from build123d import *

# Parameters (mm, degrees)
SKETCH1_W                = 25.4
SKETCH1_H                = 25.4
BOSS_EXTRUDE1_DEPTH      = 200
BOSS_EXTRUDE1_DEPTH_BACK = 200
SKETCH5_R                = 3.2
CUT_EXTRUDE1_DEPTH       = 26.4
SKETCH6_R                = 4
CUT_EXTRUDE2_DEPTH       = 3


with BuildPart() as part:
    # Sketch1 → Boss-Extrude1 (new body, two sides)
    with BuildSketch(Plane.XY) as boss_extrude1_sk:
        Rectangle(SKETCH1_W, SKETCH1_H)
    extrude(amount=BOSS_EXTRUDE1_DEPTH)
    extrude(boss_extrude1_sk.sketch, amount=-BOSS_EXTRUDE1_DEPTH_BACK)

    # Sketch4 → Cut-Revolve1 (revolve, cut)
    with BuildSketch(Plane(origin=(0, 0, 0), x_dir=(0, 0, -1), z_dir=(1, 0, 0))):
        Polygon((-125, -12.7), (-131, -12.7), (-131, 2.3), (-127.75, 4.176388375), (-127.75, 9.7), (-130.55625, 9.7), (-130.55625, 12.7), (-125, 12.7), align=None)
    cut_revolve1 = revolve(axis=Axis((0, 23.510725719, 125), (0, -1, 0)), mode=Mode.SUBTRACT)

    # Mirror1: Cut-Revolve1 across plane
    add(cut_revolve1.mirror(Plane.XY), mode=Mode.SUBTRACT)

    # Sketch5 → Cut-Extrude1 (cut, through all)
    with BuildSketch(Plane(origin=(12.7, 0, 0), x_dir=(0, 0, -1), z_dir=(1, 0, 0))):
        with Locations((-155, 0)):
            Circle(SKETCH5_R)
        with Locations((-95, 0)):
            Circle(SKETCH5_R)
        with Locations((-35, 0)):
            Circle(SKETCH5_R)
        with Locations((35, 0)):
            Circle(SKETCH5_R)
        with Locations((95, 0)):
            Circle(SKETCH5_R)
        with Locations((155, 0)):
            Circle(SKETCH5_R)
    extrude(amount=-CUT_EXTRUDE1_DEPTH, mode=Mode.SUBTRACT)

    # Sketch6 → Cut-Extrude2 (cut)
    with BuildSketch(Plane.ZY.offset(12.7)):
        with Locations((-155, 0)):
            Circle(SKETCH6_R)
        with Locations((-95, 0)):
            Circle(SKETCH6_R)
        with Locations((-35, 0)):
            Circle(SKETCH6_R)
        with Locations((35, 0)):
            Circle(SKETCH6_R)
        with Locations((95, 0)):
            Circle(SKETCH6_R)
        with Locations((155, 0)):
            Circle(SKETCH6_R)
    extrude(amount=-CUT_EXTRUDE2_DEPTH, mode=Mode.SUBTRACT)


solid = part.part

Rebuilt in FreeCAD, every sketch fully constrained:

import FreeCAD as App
import Part
import Sketcher
Q = App.Units.Quantity


def add_polygon(sketch, points):
    """Adds a closed chain of lines whose ends are joined by coincident constraints."""
    first, n = sketch.GeometryCount, len(points)
    for a, b in zip(points, points[1:] + points[:1]):
        sketch.addGeometry(Part.LineSegment(App.Vector(*a, 0), App.Vector(*b, 0)), False)
    for i in range(n):
        sketch.addConstraint(Sketcher.Constraint("Coincident", first + i, 2, first + (i + 1) % n, 1))

doc = App.newDocument("Part")
body = doc.addObject("PartDesign::Body", "Body")

# Sketch on XY plane
sketch1 = body.newObject("Sketcher::SketchObject", "Sketch")
sketch1.AttachmentSupport = (doc.getObject("XY_Plane"), [""])
sketch1.MapMode = "FlatFace"
add_polygon(sketch1, [(-13, 13), (-13, -13), (13, -13), (13, 13)])  # lines 0-3
sketch1.addConstraint(Sketcher.Constraint("Vertical", 0))
sketch1.addConstraint(Sketcher.Constraint("Horizontal", 1))
sketch1.addConstraint(Sketcher.Constraint("Vertical", 2))
sketch1.addConstraint(Sketcher.Constraint("Horizontal", 3))
sketch1.addConstraint(Sketcher.Constraint("Symmetric", 0, 2, 2, 2, -1, 1))
sketch1.addConstraint(Sketcher.Constraint("Equal", 3, 0))
sketch1.addConstraint(Sketcher.Constraint("DistanceX", 1, 1, 1, 2, 25.4))
pad1 = body.newObject("PartDesign::Pad", "Pad")
pad1.Profile = sketch1
pad1.Type = "TwoLengths"
pad1.Length = 200
pad1.Length2 = 200

# Sketch on YZ plane
sketch2 = body.newObject("Sketcher::SketchObject", "Sketch001")
sketch2.AttachmentSupport = (doc.getObject("YZ_Plane"), [""])
sketch2.MapMode = "FlatFace"
add_polygon(sketch2, [(-12.7, 131), (-12.7, 125), (12.7, 125), (12.7, 130.6), (9.7, 130.6), (9.7, 127.8), (4.2, 127.8), (2.3, 131)])  # lines 0-7
sketch2.addGeometry(Part.LineSegment(App.Vector(12.7, 125, 0), App.Vector(-12.7, 125, 0)), True)  # axis
sketch2.addConstraint(Sketcher.Constraint("Vertical", 0))
sketch2.addConstraint(Sketcher.Constraint("Horizontal", 1))
sketch2.addConstraint(Sketcher.Constraint("Vertical", 2))
sketch2.addConstraint(Sketcher.Constraint("Horizontal", 3))
sketch2.addConstraint(Sketcher.Constraint("Vertical", 4))
sketch2.addConstraint(Sketcher.Constraint("Horizontal", 5))
sketch2.addConstraint(Sketcher.Constraint("Horizontal", 7))
sketch2.addConstraint(Sketcher.Constraint("Horizontal", 8))
sketch2.addConstraint(Sketcher.Constraint("Coincident", 8, 1, 1, 2))
sketch2.addConstraint(Sketcher.Constraint("Vertical", 7, 2, 8, 2))
sketch2.addConstraint(Sketcher.Constraint("DistanceX", 3, 2, 3, 1, 3.0))
sketch2.addConstraint(Sketcher.Constraint("DistanceX", 7, 2, 7, 1, 15.0))
sketch2.addConstraint(Sketcher.Constraint("DistanceY", 0, 2, 0, 1, 6.0))
sketch2.addConstraint(Sketcher.Constraint("Angle", 6, Q("120 deg")))
sketch2.addConstraint(Sketcher.Constraint("DistanceX", 1, 1, 1, 2, 25.4))
sketch2.addConstraint(Sketcher.Constraint("DistanceY", -1, 1, 0, 2, 125.0))
sketch2.addConstraint(Sketcher.Constraint("DistanceX", 0, 2, -1, 1, 12.7))
sketch2.addConstraint(Sketcher.Constraint("DistanceY", -1, 1, 4, 2, 127.75))
sketch2.addConstraint(Sketcher.Constraint("DistanceY", 2, 1, 2, 2, 5.55625))
groove = body.newObject("PartDesign::Groove", "Groove")
groove.Profile = sketch2
groove.ReferenceAxis = (sketch2, ["Axis0"])
groove.Angle = 360
doc.recompute()

mirrored = body.newObject("PartDesign::Mirrored", "Mirrored")
mirrored.Originals = [groove]
mirrored.MirrorPlane = (doc.getObject("XY_Plane"), [""])
body.Tip = mirrored

# Sketch on YZ plane
sketch3 = body.newObject("Sketcher::SketchObject", "Sketch002")
sketch3.AttachmentSupport = (doc.getObject("YZ_Plane"), [""])
sketch3.MapMode = "FlatFace"
sketch3.AttachmentOffset = App.Placement(App.Vector(0, 0, 12.7), App.Rotation())
sketch3.addGeometry(Part.Circle(App.Vector(0, 155, 0), App.Vector(0, 0, 1), 3.2), False)
sketch3.addGeometry(Part.Circle(App.Vector(0, 95, 0), App.Vector(0, 0, 1), 3.2), False)
sketch3.addGeometry(Part.Circle(App.Vector(0, 35, 0), App.Vector(0, 0, 1), 3.2), False)
sketch3.addGeometry(Part.Circle(App.Vector(0, -35, 0), App.Vector(0, 0, 1), 3.2), False)
sketch3.addGeometry(Part.Circle(App.Vector(0, -95, 0), App.Vector(0, 0, 1), 3.2), False)
sketch3.addGeometry(Part.Circle(App.Vector(0, -155, 0), App.Vector(0, 0, 1), 3.2), False)
sketch3.addConstraint(Sketcher.Constraint("Equal", 0, 1))
sketch3.addConstraint(Sketcher.Constraint("Equal", 1, 2))
sketch3.addConstraint(Sketcher.Constraint("Equal", 2, 3))
sketch3.addConstraint(Sketcher.Constraint("Equal", 3, 4))
sketch3.addConstraint(Sketcher.Constraint("Equal", 4, 5))
sketch3.addConstraint(Sketcher.Constraint("Symmetric", 2, 3, 3, 3, -1, 1))
sketch3.addConstraint(Sketcher.Constraint("Symmetric", 1, 3, 4, 3, -1, 1))
sketch3.addConstraint(Sketcher.Constraint("Symmetric", 0, 3, 5, 3, -1, 1))
sketch3.addConstraint(Sketcher.Constraint("PointOnObject", 0, 3, -2))
sketch3.addConstraint(Sketcher.Constraint("PointOnObject", 1, 3, -2))
sketch3.addConstraint(Sketcher.Constraint("PointOnObject", 2, 3, -2))
sketch3.addConstraint(Sketcher.Constraint("Diameter", 0, 6.4))
sketch3.addConstraint(Sketcher.Constraint("DistanceY", -1, 1, 0, 3, 155.0))
sketch3.addConstraint(Sketcher.Constraint("DistanceY", -1, 1, 1, 3, 95.0))
sketch3.addConstraint(Sketcher.Constraint("DistanceY", -1, 1, 2, 3, 35.0))
pocket1 = body.newObject("PartDesign::Pocket", "Pocket")
pocket1.Profile = sketch3
pocket1.Type = "ThroughAll"

# Sketch on YZ plane
sketch4 = body.newObject("Sketcher::SketchObject", "Sketch003")
sketch4.AttachmentSupport = (doc.getObject("YZ_Plane"), [""])
sketch4.MapMode = "FlatFace"
sketch4.AttachmentOffset = App.Placement(App.Vector(0, 0, -12.7), App.Rotation())
sketch4.addGeometry(Part.Circle(App.Vector(0, -155, 0), App.Vector(0, 0, 1), 4), False)
sketch4.addGeometry(Part.Circle(App.Vector(0, -95, 0), App.Vector(0, 0, 1), 4), False)
sketch4.addGeometry(Part.Circle(App.Vector(0, -35, 0), App.Vector(0, 0, 1), 4), False)
sketch4.addGeometry(Part.Circle(App.Vector(0, 35, 0), App.Vector(0, 0, 1), 4), False)
sketch4.addGeometry(Part.Circle(App.Vector(0, 95, 0), App.Vector(0, 0, 1), 4), False)
sketch4.addGeometry(Part.Circle(App.Vector(0, 155, 0), App.Vector(0, 0, 1), 4), False)
sketch4.addConstraint(Sketcher.Constraint("Equal", 0, 1))
sketch4.addConstraint(Sketcher.Constraint("Equal", 1, 2))
sketch4.addConstraint(Sketcher.Constraint("Equal", 2, 3))
sketch4.addConstraint(Sketcher.Constraint("Equal", 3, 4))
sketch4.addConstraint(Sketcher.Constraint("Equal", 4, 5))
sketch4.addConstraint(Sketcher.Constraint("Symmetric", 2, 3, 3, 3, -1, 1))
sketch4.addConstraint(Sketcher.Constraint("Symmetric", 1, 3, 4, 3, -1, 1))
sketch4.addConstraint(Sketcher.Constraint("Symmetric", 0, 3, 5, 3, -1, 1))
sketch4.addConstraint(Sketcher.Constraint("PointOnObject", 0, 3, -2))
sketch4.addConstraint(Sketcher.Constraint("PointOnObject", 1, 3, -2))
sketch4.addConstraint(Sketcher.Constraint("PointOnObject", 2, 3, -2))
sketch4.addConstraint(Sketcher.Constraint("Diameter", 0, 8.0))
sketch4.addConstraint(Sketcher.Constraint("DistanceY", 0, 3, -1, 1, 155.0))
sketch4.addConstraint(Sketcher.Constraint("DistanceY", 1, 3, -1, 1, 95.0))
sketch4.addConstraint(Sketcher.Constraint("DistanceY", 2, 3, -1, 1, 35.0))
pocket2 = body.newObject("PartDesign::Pocket", "Pocket001")
pocket2.Profile = sketch4
pocket2.Length = 3
pocket2.Reversed = True

doc.recompute()
